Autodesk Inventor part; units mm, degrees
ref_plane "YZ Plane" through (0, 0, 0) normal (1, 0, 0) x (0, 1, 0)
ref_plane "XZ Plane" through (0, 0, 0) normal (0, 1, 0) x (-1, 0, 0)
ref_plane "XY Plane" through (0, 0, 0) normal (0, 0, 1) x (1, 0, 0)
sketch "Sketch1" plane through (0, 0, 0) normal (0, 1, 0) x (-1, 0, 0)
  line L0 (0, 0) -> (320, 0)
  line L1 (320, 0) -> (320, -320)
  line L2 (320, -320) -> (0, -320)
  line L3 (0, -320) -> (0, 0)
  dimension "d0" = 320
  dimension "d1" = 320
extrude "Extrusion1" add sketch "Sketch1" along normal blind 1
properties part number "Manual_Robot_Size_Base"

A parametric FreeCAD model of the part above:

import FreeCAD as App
import Part
import Sketcher

V = App.Vector

doc = App.newDocument("Part")
body = doc.addObject("PartDesign::Body", "Body")

sketch1 = body.newObject("Sketcher::SketchObject", "Sketch")
sketch1.AttachmentSupport = (doc.getObject("XZ_Plane"), [""])
sketch1.MapMode = "FlatFace"
sketch1.addGeometry([
    Part.LineSegment(V(-320, 0, 0), V(0, 0, 0)),
    Part.LineSegment(V(0, 0, 0), V(0, -320, 0)),
    Part.LineSegment(V(0, -320, 0), V(-320, -320, 0)),
    Part.LineSegment(V(-320, -320, 0), V(-320, 0, 0)),
], False)
sketch1.addConstraint([
    Sketcher.Constraint("Coincident", 0, 2, 1, 1),
    Sketcher.Constraint("Coincident", 1, 2, 2, 1),
    Sketcher.Constraint("Coincident", 2, 2, 3, 1),
    Sketcher.Constraint("Coincident", 3, 2, 0, 1),
    Sketcher.Constraint("Horizontal", 0),
    Sketcher.Constraint("Vertical", 1),
    Sketcher.Constraint("Horizontal", 2),
    Sketcher.Constraint("Vertical", 3),
    Sketcher.Constraint("Coincident", 0, 2, -1, 1),
    Sketcher.Constraint("Equal", 2, 1),
    Sketcher.Constraint("DistanceX", 0, 1, 0, 2, 320.0),
])
pad1 = body.newObject("PartDesign::Pad", "Pad")
pad1.Profile = sketch1
pad1.Length = 1
pad1.Reversed = True

doc.recompute()
